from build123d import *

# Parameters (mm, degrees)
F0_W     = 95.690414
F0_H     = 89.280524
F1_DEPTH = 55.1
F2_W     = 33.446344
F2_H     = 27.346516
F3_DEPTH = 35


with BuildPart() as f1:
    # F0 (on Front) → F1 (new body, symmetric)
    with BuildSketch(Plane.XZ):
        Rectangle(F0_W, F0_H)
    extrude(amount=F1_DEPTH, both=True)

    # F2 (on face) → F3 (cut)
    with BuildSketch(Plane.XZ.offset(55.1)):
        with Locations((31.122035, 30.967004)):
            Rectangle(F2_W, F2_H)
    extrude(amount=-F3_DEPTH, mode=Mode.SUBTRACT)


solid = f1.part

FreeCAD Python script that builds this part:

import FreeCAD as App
import Part
import Sketcher
from FreeCAD import Vector
Q = App.Units.Quantity


def add_polygon(sketch, points):
    """Adds a closed chain of lines whose ends are joined by coincident constraints."""
    first, n = sketch.GeometryCount, len(points)
    for a, b in zip(points, points[1:] + points[:1]):
        sketch.addGeometry(Part.LineSegment(App.Vector(*a, 0), App.Vector(*b, 0)), False)
    for i in range(n):
        sketch.addConstraint(Sketcher.Constraint("Coincident", first + i, 2, first + (i + 1) % n, 1))

doc = App.newDocument("Part")
body = doc.addObject("PartDesign::Body", "Body")

# Sketch on XZ plane
sketch1 = body.newObject("Sketcher::SketchObject", "Sketch")
sketch1.AttachmentSupport = (doc.getObject("XZ_Plane"), [""])
sketch1.MapMode = "FlatFace"
add_polygon(sketch1, [(-48, 45), (-48, -45), (48, -45), (48, 45)])  # lines 0-3
sketch1.addConstraint([
    Sketcher.Constraint("Vertical", 0),
    Sketcher.Constraint("Horizontal", 1),
    Sketcher.Constraint("Vertical", 2),
    Sketcher.Constraint("Horizontal", 3),
    Sketcher.Constraint("Symmetric", 0, 2, 2, 2, -1, 1),
    Sketcher.Constraint("DistanceX", 1, 1, 1, 2, Q("95.690414 mm")),
    Sketcher.Constraint("DistanceY", 0, 2, 0, 1, Q("89.280524 mm")),
])
pad1 = body.newObject("PartDesign::Pad", "Pad")
pad1.Profile = sketch1
pad1.Length = 110.2
pad1.Midplane = True

# Sketch on XZ plane
sketch2 = body.newObject("Sketcher::SketchObject", "Sketch001")
sketch2.AttachmentSupport = (doc.getObject("XZ_Plane"), [""])
sketch2.MapMode = "FlatFace"
sketch2.AttachmentOffset = App.Placement(Vector(0, 0, 55.1), App.Rotation())
add_polygon(sketch2, [(14, 45), (14, 17), (48, 17), (48, 45)])  # lines 0-3
sketch2.addConstraint([
    Sketcher.Constraint("Vertical", 0),
    Sketcher.Constraint("Horizontal", 1),
    Sketcher.Constraint("Vertical", 2),
    Sketcher.Constraint("Horizontal", 3),
    Sketcher.Constraint("DistanceX", 1, 1, 1, 2, Q("33.446344 mm")),
    Sketcher.Constraint("DistanceY", 0, 2, 0, 1, Q("27.346516 mm")),
    Sketcher.Constraint("DistanceX", -1, 1, 0, 2, Q("14.398863 mm")),
    Sketcher.Constraint("DistanceY", -1, 1, 0, 2, Q("17.293746 mm")),
])
pocket1 = body.newObject("PartDesign::Pocket", "Pocket")
pocket1.Profile = sketch2
pocket1.Length = 35

doc.recompute()
